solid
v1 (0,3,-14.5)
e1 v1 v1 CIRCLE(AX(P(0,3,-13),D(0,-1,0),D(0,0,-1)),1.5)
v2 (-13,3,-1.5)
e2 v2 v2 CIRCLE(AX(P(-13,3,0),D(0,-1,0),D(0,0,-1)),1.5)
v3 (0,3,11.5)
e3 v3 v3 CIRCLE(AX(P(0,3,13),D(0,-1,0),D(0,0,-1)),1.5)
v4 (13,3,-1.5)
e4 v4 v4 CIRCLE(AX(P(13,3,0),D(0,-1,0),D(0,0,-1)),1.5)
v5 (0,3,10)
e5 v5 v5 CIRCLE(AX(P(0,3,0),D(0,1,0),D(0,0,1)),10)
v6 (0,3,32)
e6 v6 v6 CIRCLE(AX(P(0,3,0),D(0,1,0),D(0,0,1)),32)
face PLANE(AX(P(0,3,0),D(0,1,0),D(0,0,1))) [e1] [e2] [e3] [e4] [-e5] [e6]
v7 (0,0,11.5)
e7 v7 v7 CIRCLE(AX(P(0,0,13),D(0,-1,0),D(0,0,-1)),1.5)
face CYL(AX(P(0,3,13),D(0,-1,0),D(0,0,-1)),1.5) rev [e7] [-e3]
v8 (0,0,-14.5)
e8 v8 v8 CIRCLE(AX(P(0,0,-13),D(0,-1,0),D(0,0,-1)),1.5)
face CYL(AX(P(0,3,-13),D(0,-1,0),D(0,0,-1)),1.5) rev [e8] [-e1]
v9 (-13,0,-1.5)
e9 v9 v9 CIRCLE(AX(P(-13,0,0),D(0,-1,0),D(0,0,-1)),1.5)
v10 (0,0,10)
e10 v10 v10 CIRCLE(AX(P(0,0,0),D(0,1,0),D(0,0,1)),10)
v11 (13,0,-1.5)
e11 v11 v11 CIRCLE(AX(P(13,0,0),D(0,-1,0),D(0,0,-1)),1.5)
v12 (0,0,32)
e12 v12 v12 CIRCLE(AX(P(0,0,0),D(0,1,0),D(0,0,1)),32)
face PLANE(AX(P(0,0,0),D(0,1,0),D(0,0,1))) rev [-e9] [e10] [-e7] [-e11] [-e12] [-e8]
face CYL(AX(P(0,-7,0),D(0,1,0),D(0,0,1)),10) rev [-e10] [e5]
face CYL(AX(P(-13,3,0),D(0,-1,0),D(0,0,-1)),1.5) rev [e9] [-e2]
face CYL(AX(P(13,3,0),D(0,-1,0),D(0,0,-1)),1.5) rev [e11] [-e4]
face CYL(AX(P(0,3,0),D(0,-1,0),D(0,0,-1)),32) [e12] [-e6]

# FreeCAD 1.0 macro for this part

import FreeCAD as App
import Part
import Sketcher

V = App.Vector
Q = App.Units.Quantity

doc = App.newDocument("Part")
body = doc.addObject("PartDesign::Body", "Body")

# Sketch on XZ plane
sketch1 = doc.addObject("Sketcher::SketchObject", "Sketch")
body.addObject(sketch1)
sketch1.AttachmentSupport = (doc.XZ_Plane, [""])
sketch1.MapMode = "FlatFace"
sketch1.addGeometry(Part.Circle(V(0, 0, 0), V(0, 0, 1), 32), False)
sketch1.addConstraint([
    Sketcher.Constraint("Coincident", 0, 3, -1, 1),
    Sketcher.Constraint("Diameter", 0, Q("64 mm")),
])
pad1 = doc.addObject("PartDesign::Pad", "Pad")
body.addObject(pad1)
pad1.Profile = sketch1
pad1.Length = 3
pad1.Reversed = True

# Sketch on XZ plane
sketch2 = doc.addObject("Sketcher::SketchObject", "Sketch001")
body.addObject(sketch2)
sketch2.AttachmentSupport = (doc.XZ_Plane, [""])
sketch2.MapMode = "FlatFace"
sketch2.AttachmentOffset = App.Placement(V(0, 0, -3), App.Rotation())
sketch2.addGeometry(Part.Circle(V(0, 0, 0), V(0, 0, 1), 10), False)
sketch2.addConstraint([
    Sketcher.Constraint("Coincident", 0, 3, -1, 1),
    Sketcher.Constraint("Diameter", 0, Q("20 mm")),
])
pocket1 = doc.addObject("PartDesign::Pocket", "Pocket")
body.addObject(pocket1)
pocket1.Profile = sketch2
pocket1.Length = 10
pocket1.Reversed = True

# Sketch on XZ plane
sketch3 = doc.addObject("Sketcher::SketchObject", "Sketch002")
body.addObject(sketch3)
sketch3.AttachmentSupport = (doc.XZ_Plane, [""])
sketch3.MapMode = "FlatFace"
sketch3.addGeometry([
    Part.Circle(V(13, 0, 0), V(0, 0, 1), 1.5),
    Part.Circle(V(0, -13, 0), V(0, 0, 1), 1.5),
    Part.Circle(V(-13, 0, 0), V(0, 0, 1), 1.5),
    Part.Circle(V(0, 13, 0), V(0, 0, 1), 1.5),
], False)
sketch3.addConstraint([
    Sketcher.Constraint("Equal", 0, 1),
    Sketcher.Constraint("Equal", 1, 2),
    Sketcher.Constraint("Equal", 2, 3),
    Sketcher.Constraint("Symmetric", 0, 3, 2, 3, -1, 1),
    Sketcher.Constraint("Symmetric", 1, 3, 3, 3, -1, 1),
    Sketcher.Constraint("PointOnObject", 0, 3, -1),
    Sketcher.Constraint("PointOnObject", 1, 3, -2),
    Sketcher.Constraint("Diameter", 0, Q("3 mm")),
    Sketcher.Constraint("DistanceX", -1, 1, 0, 3, Q("13 mm")),
    Sketcher.Constraint("DistanceY", 1, 3, -1, 1, Q("13 mm")),
])
pocket2 = doc.addObject("PartDesign::Pocket", "Pocket001")
body.addObject(pocket2)
pocket2.Profile = sketch3
pocket2.Type = "ThroughAll"

doc.recompute()
